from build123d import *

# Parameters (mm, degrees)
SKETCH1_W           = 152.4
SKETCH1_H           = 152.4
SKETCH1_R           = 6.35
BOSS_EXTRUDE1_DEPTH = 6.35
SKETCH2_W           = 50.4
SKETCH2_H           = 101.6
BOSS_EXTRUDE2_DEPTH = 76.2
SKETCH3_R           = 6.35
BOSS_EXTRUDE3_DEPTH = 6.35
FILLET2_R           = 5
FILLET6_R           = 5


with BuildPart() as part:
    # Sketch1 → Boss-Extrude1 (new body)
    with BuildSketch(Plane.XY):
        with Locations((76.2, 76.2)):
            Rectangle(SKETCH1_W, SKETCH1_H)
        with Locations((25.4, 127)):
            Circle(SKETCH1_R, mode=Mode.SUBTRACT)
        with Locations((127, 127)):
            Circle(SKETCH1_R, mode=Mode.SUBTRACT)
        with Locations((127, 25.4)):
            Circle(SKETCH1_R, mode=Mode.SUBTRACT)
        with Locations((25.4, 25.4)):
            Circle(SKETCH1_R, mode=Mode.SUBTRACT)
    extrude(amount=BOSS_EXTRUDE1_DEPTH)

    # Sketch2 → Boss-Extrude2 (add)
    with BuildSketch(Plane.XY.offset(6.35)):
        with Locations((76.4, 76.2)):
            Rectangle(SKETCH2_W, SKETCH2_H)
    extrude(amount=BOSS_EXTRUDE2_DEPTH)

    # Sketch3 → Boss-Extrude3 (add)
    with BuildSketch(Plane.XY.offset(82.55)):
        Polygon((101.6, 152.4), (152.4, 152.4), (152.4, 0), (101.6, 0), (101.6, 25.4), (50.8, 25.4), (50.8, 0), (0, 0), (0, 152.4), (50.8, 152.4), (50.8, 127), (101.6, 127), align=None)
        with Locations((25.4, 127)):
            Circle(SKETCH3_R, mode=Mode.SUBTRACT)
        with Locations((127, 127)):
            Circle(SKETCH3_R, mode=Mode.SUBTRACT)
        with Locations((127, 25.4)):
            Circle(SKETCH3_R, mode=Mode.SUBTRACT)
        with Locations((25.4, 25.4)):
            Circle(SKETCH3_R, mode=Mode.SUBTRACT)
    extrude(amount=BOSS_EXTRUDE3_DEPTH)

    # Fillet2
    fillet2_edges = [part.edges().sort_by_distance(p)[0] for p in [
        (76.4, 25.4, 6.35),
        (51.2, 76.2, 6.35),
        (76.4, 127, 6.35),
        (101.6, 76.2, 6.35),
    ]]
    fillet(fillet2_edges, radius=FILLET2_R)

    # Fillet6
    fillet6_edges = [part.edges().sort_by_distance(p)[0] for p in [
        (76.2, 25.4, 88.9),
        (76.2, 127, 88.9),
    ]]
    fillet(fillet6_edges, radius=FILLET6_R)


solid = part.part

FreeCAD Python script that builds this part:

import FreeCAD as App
import Part
import Sketcher
Q = App.Units.Quantity


def edges_at(feature, points):
    """Names of the edges that pass closest to the given points."""
    edges = feature.Shape.Edges
    near = lambda p: min(range(len(edges)), key=lambda i: edges[i].distToShape(Part.Vertex(*p))[0])
    return sorted({f"Edge{near(p) + 1}" for p in points})


def add_polygon(sketch, points):
    """Adds a closed chain of lines whose ends are joined by coincident constraints."""
    first, n = sketch.GeometryCount, len(points)
    for a, b in zip(points, points[1:] + points[:1]):
        sketch.addGeometry(Part.LineSegment(App.Vector(*a, 0), App.Vector(*b, 0)), False)
    for i in range(n):
        sketch.addConstraint(Sketcher.Constraint("Coincident", first + i, 2, first + (i + 1) % n, 1))

doc = App.newDocument("Part")
body = doc.addObject("PartDesign::Body", "Body")

# Sketch on XY plane
sketch1 = body.newObject("Sketcher::SketchObject", "Sketch")
sketch1.AttachmentSupport = (doc.getObject("XY_Plane"), [""])
sketch1.MapMode = "FlatFace"
add_polygon(sketch1, [(0, 152.4), (0, 0), (152.4, 0), (152.4, 152.4)])  # lines 0-3
sketch1.addGeometry(Part.Circle(App.Vector(25.4, 25.4, 0), App.Vector(0, 0, 1), 6.35), False)  # 4
sketch1.addGeometry(Part.Circle(App.Vector(127, 25.4, 0), App.Vector(0, 0, 1), 6.35), False)  # 5
sketch1.addGeometry(Part.Circle(App.Vector(25.4, 127, 0), App.Vector(0, 0, 1), 6.35), False)  # 6
sketch1.addGeometry(Part.Circle(App.Vector(127, 127, 0), App.Vector(0, 0, 1), 6.35), False)  # 7
sketch1.addConstraint([
    Sketcher.Constraint("Vertical", 0),
    Sketcher.Constraint("Horizontal", 1),
    Sketcher.Constraint("Vertical", 2),
    Sketcher.Constraint("Horizontal", 3),
    Sketcher.Constraint("Coincident", 0, 2, -1, 1),
    Sketcher.Constraint("Equal", 4, 5),
    Sketcher.Constraint("Equal", 5, 6),
    Sketcher.Constraint("Equal", 6, 7),
    Sketcher.Constraint("Horizontal", 4, 3, 5, 3),
    Sketcher.Constraint("Horizontal", 6, 3, 7, 3),
    Sketcher.Constraint("Vertical", 4, 3, 6, 3),
    Sketcher.Constraint("Vertical", 5, 3, 7, 3),
    Sketcher.Constraint("Equal", 3, 0),
    Sketcher.Constraint("Diameter", 4, Q("0.5 in")),
    Sketcher.Constraint("DistanceX", 1, 1, 1, 2, Q("6 in")),
    Sketcher.Constraint("DistanceX", -1, 1, 4, 3, Q("1 in")),
    Sketcher.Constraint("DistanceY", -1, 1, 4, 3, Q("1 in")),
    Sketcher.Constraint("DistanceX", -1, 1, 5, 3, Q("5 in")),
    Sketcher.Constraint("DistanceY", -1, 1, 6, 3, Q("5 in")),
])
pad1 = body.newObject("PartDesign::Pad", "Pad")
pad1.Profile = sketch1
pad1.Length = Q("0.25 in")

# Sketch on XY plane
sketch2 = body.newObject("Sketcher::SketchObject", "Sketch001")
sketch2.AttachmentSupport = (doc.getObject("XY_Plane"), [""])
sketch2.MapMode = "FlatFace"
sketch2.AttachmentOffset = App.Placement(App.Vector(0, 0, 0.25 * 25.4), App.Rotation())
add_polygon(sketch2, [(51.2, 127), (51.2, 25.4), (101.6, 25.4), (101.6, 127)])  # lines 0-3
sketch2.addConstraint([
    Sketcher.Constraint("Vertical", 0),
    Sketcher.Constraint("Horizontal", 1),
    Sketcher.Constraint("Vertical", 2),
    Sketcher.Constraint("Horizontal", 3),
    Sketcher.Constraint("DistanceY", 0, 2, 0, 1, Q("4 in")),
    Sketcher.Constraint("DistanceY", -1, 1, 0, 2, Q("1 in")),
    Sketcher.Constraint("DistanceX", -1, 1, 1, 2, Q("4 in")),
    Sketcher.Constraint("DistanceX", 1, 1, 1, 2, Q("50.4 mm")),
])
pad2 = body.newObject("PartDesign::Pad", "Pad001")
pad2.Profile = sketch2
pad2.Length = Q("3 in")

# Sketch on XY plane
sketch3 = body.newObject("Sketcher::SketchObject", "Sketch002")
sketch3.AttachmentSupport = (doc.getObject("XY_Plane"), [""])
sketch3.MapMode = "FlatFace"
sketch3.AttachmentOffset = App.Placement(App.Vector(0, 0, 3.25 * 25.4), App.Rotation())
add_polygon(sketch3, [(152.4, 152.4), (101.6, 152.4), (101.6, 127), (50.8, 127), (50.8, 152.4), (0, 152.4), (0, 0), (50.8, 0), (50.8, 25.4), (101.6, 25.4), (101.6, 0), (152.4, 0)])  # lines 0-11
sketch3.addGeometry(Part.Circle(App.Vector(127, 25.4, 0), App.Vector(0, 0, 1), 6.35), False)  # 12
sketch3.addGeometry(Part.Circle(App.Vector(25.4, 25.4, 0), App.Vector(0, 0, 1), 6.35), False)  # 13
sketch3.addGeometry(Part.Circle(App.Vector(127, 127, 0), App.Vector(0, 0, 1), 6.35), False)  # 14
sketch3.addGeometry(Part.Circle(App.Vector(25.4, 127, 0), App.Vector(0, 0, 1), 6.35), False)  # 15
sketch3.addConstraint([
    Sketcher.Constraint("Horizontal", 0),
    Sketcher.Constraint("Vertical", 1),
    Sketcher.Constraint("Horizontal", 2),
    Sketcher.Constraint("Vertical", 3),
    Sketcher.Constraint("Horizontal", 4),
    Sketcher.Constraint("Vertical", 5),
    Sketcher.Constraint("Horizontal", 6),
    Sketcher.Constraint("Vertical", 7),
    Sketcher.Constraint("Horizontal", 8),
    Sketcher.Constraint("Vertical", 9),
    Sketcher.Constraint("Horizontal", 10),
    Sketcher.Constraint("Vertical", 11),
    Sketcher.Constraint("Coincident", 5, 2, -1, 1),
    Sketcher.Constraint("Equal", 12, 13),
    Sketcher.Constraint("Equal", 13, 14),
    Sketcher.Constraint("Equal", 14, 15),
    Sketcher.Constraint("PointOnObject", 9, 2, -1),
    Sketcher.Constraint("Horizontal", 12, 3, 13, 3),
    Sketcher.Constraint("Horizontal", 14, 3, 15, 3),
    Sketcher.Constraint("Horizontal", 15, 3, 1, 2),
    Sketcher.Constraint("Horizontal", 0, 2, 3, 2),
    Sketcher.Constraint("Horizontal", 13, 3, 7, 2),
    Sketcher.Constraint("Vertical", 12, 3, 14, 3),
    Sketcher.Constraint("Vertical", 13, 3, 15, 3),
    Sketcher.Constraint("Vertical", 3, 2, 6, 2),
    Sketcher.Constraint("Vertical", 1, 2, 8, 2),
    Sketcher.Constraint("Equal", 0, 2),
    Sketcher.Constraint("Equal", 2, 4),
    Sketcher.Constraint("Equal", 3, 7),
    Sketcher.Constraint("Diameter", 12, Q("0.5 in")),
    Sketcher.Constraint("DistanceX", 0, 2, 0, 1, Q("2 in")),
    Sketcher.Constraint("DistanceY", 1, 2, 1, 1, Q("1 in")),
    Sketcher.Constraint("DistanceY", 5, 2, 5, 1, Q("6 in")),
    Sketcher.Constraint("DistanceX", -1, 1, 12, 3, Q("5 in")),
    Sketcher.Constraint("DistanceX", -1, 1, 13, 3, Q("1 in")),
])
pad3 = body.newObject("PartDesign::Pad", "Pad002")
pad3.Profile = sketch3
pad3.Length = Q("0.25 in")
doc.recompute()

fillet = body.newObject("PartDesign::Fillet", "Fillet")
fillet.Base = (pad3, edges_at(pad3, [
    (76.4, 25.4, 6.35),
    (51.2, 76.2, 6.35),
    (76.4, 127, 6.35),
    (101.6, 76.2, 6.35),
]))
fillet.Radius = 5
doc.recompute()

fillet2 = body.newObject("PartDesign::Fillet", "Fillet001")
fillet2.Base = (fillet, edges_at(fillet, [(76.2, 25.4, 88.9), (76.2, 127, 88.9)]))
fillet2.Radius = 5

doc.recompute()
